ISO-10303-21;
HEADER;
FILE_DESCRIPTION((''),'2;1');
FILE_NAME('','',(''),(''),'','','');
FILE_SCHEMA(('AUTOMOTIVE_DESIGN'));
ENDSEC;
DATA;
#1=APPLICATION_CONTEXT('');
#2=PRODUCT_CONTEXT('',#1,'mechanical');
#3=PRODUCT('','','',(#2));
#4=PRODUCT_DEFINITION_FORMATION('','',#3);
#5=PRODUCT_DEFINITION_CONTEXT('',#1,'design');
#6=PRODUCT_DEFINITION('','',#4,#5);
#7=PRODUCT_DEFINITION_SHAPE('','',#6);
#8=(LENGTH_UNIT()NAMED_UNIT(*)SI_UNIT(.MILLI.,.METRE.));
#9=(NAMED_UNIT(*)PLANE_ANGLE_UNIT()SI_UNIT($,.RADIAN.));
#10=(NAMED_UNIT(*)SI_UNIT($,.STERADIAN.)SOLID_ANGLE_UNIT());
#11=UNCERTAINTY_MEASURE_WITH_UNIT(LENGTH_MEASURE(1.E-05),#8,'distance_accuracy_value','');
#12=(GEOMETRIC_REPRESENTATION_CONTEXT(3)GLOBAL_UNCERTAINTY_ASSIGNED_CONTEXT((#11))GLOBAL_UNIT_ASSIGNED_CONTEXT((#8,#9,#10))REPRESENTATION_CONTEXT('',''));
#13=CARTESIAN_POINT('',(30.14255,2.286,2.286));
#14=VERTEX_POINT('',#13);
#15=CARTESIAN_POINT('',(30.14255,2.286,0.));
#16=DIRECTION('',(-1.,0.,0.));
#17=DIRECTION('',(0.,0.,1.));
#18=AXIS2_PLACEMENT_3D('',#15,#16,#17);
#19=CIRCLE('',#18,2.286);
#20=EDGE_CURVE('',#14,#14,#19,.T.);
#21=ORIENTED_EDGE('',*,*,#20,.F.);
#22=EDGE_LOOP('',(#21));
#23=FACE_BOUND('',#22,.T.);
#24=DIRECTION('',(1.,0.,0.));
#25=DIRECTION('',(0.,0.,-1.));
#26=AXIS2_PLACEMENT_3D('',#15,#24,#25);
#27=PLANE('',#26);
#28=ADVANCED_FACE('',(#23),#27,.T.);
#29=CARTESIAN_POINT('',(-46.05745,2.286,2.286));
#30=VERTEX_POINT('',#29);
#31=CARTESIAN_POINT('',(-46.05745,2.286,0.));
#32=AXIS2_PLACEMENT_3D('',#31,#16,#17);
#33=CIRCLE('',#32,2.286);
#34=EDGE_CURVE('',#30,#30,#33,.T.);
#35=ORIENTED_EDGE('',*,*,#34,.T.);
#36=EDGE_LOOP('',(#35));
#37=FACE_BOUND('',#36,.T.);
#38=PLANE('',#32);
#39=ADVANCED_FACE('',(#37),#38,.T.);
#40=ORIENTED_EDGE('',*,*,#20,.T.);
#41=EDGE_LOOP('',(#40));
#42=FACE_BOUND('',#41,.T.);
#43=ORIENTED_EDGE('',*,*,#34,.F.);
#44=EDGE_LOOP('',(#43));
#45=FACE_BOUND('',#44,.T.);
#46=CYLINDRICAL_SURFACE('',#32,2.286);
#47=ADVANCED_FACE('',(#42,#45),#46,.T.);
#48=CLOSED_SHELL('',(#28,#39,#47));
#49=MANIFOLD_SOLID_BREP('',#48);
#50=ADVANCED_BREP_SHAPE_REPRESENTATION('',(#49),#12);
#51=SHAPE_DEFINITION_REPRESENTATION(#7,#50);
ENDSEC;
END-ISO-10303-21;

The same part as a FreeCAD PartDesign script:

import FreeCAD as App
import Part
import Sketcher

V = App.Vector
Q = App.Units.Quantity

doc = App.newDocument("Part")
body = doc.addObject("PartDesign::Body", "Body")

# Sketch on XY plane
sketch1 = body.newObject("Sketcher::SketchObject", "Sketch")
sketch1.AttachmentSupport = (doc.getObject("XY_Plane"), [""])
sketch1.MapMode = "FlatFace"
sketch1.addGeometry([
    Part.LineSegment(V(-46.05745, 2.286, 0), V(-46.05745, 0, 0)),
    Part.LineSegment(V(-46.05745, 0, 0), V(30.14255, 0, 0)),
    Part.LineSegment(V(30.14255, 0, 0), V(30.14255, 2.286, 0)),
    Part.LineSegment(V(30.14255, 2.286, 0), V(-46.05745, 2.286, 0)),
], False)
sketch1.addGeometry(Part.LineSegment(V(-46.05745, 2.286, 0), V(30.14255, 2.286, 0)), True)  # axis
sketch1.addConstraint([
    Sketcher.Constraint("Coincident", 0, 2, 1, 1),
    Sketcher.Constraint("Coincident", 1, 2, 2, 1),
    Sketcher.Constraint("Coincident", 2, 2, 3, 1),
    Sketcher.Constraint("Coincident", 3, 2, 0, 1),
    Sketcher.Constraint("Vertical", 0),
    Sketcher.Constraint("Horizontal", 1),
    Sketcher.Constraint("Vertical", 2),
    Sketcher.Constraint("Horizontal", 3),
    Sketcher.Constraint("Horizontal", 4),
    Sketcher.Constraint("Coincident", 4, 1, 3, 2),
    Sketcher.Constraint("PointOnObject", 0, 2, -1),
    Sketcher.Constraint("Vertical", 1, 2, 4, 2),
    Sketcher.Constraint("DistanceX", 1, 1, 1, 2, Q("3 in")),
    Sketcher.Constraint("DistanceY", 0, 2, 0, 1, Q("0.09 in")),
    Sketcher.Constraint("DistanceX", 0, 2, -1, 1, Q("46.05745 mm")),
])
revolution = body.newObject("PartDesign::Revolution", "Revolution")
revolution.Profile = sketch1
revolution.ReferenceAxis = (sketch1, ["Axis0"])
revolution.Angle = 360

doc.recompute()
